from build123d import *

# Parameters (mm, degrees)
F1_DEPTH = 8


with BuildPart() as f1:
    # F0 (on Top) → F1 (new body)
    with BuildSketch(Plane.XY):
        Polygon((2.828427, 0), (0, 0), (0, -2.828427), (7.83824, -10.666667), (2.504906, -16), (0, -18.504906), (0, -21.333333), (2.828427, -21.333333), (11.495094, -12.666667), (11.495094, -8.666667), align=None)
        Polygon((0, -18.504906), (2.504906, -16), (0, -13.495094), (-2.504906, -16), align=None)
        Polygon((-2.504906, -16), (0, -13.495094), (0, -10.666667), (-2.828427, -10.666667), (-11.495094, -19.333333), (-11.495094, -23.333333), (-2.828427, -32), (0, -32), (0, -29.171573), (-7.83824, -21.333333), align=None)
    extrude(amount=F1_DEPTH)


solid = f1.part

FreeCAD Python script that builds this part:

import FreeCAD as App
import Part
import Sketcher
from FreeCAD import Vector

doc = App.newDocument("Part")
params = doc.addObject("Spreadsheet::Sheet", "Params")
for row, (alias, value) in enumerate([
    ("sketch1_height", "4 mm"),
    ("pad1_length", "8 mm"),
], start=1):
    params.set(f"A{row}", alias)
    params.set(f"B{row}", "=" + value)
    params.setAlias(f"B{row}", alias)

body = doc.addObject("PartDesign::Body", "Body")

# Sketch on XY plane
sketch1 = body.newObject("Sketcher::SketchObject", "Sketch")
sketch1.AttachmentSupport = (doc.getObject("XY_Plane"), [""])
sketch1.MapMode = "FlatFace"
sketch1.addGeometry([
    Part.LineSegment(Vector(2.8, 0, 0), Vector(0, 0, 0)),  # 0
    Part.LineSegment(Vector(0, 0, 0), Vector(0, -2.8, 0)),  # 1
    Part.LineSegment(Vector(0, -2.8, 0), Vector(7.8, -10.7, 0)),  # 2
    Part.LineSegment(Vector(7.8, -10.7, 0), Vector(2.5, -16, 0)),  # 3
    Part.LineSegment(Vector(2.5, -16, 0), Vector(0, -13.5, 0)),  # 4
    Part.LineSegment(Vector(0, -13.5, 0), Vector(0, -10.7, 0)),  # 5
    Part.LineSegment(Vector(0, -10.7, 0), Vector(-2.8, -10.7, 0)),  # 6
    Part.LineSegment(Vector(-2.8, -10.7, 0), Vector(-11.5, -19.3, 0)),  # 7
    Part.LineSegment(Vector(-11.5, -19.3, 0), Vector(-11.5, -23.3, 0)),  # 8
    Part.LineSegment(Vector(-11.5, -23.3, 0), Vector(-2.8, -32, 0)),  # 9
    Part.LineSegment(Vector(-2.8, -32, 0), Vector(0, -32, 0)),  # 10
    Part.LineSegment(Vector(0, -32, 0), Vector(0, -29.2, 0)),  # 11
    Part.LineSegment(Vector(0, -29.2, 0), Vector(-7.8, -21.3, 0)),  # 12
    Part.LineSegment(Vector(-7.8, -21.3, 0), Vector(-2.5, -16, 0)),  # 13
    Part.LineSegment(Vector(-2.5, -16, 0), Vector(0, -18.5, 0)),  # 14
    Part.LineSegment(Vector(0, -18.5, 0), Vector(0, -21.3, 0)),  # 15
    Part.LineSegment(Vector(0, -21.3, 0), Vector(2.8, -21.3, 0)),  # 16
    Part.LineSegment(Vector(2.8, -21.3, 0), Vector(11.5, -12.7, 0)),  # 17
    Part.LineSegment(Vector(11.5, -12.7, 0), Vector(11.5, -8.7, 0)),  # 18
    Part.LineSegment(Vector(11.5, -8.7, 0), Vector(2.8, 0, 0)),  # 19
], False)
sketch1.addConstraint([
    Sketcher.Constraint("Coincident", 0, 2, 1, 1),
    Sketcher.Constraint("Coincident", 1, 2, 2, 1),
    Sketcher.Constraint("Coincident", 2, 2, 3, 1),
    Sketcher.Constraint("Coincident", 3, 2, 4, 1),
    Sketcher.Constraint("Coincident", 4, 2, 5, 1),
    Sketcher.Constraint("Coincident", 5, 2, 6, 1),
    Sketcher.Constraint("Coincident", 6, 2, 7, 1),
    Sketcher.Constraint("Coincident", 7, 2, 8, 1),
    Sketcher.Constraint("Coincident", 8, 2, 9, 1),
    Sketcher.Constraint("Coincident", 9, 2, 10, 1),
    Sketcher.Constraint("Coincident", 10, 2, 11, 1),
    Sketcher.Constraint("Coincident", 11, 2, 12, 1),
    Sketcher.Constraint("Coincident", 12, 2, 13, 1),
    Sketcher.Constraint("Coincident", 13, 2, 14, 1),
    Sketcher.Constraint("Coincident", 14, 2, 15, 1),
    Sketcher.Constraint("Coincident", 15, 2, 16, 1),
    Sketcher.Constraint("Coincident", 16, 2, 17, 1),
    Sketcher.Constraint("Coincident", 17, 2, 18, 1),
    Sketcher.Constraint("Coincident", 18, 2, 19, 1),
    Sketcher.Constraint("Coincident", 19, 2, 0, 1),
    Sketcher.Constraint("Horizontal", 0),
    Sketcher.Constraint("Vertical", 1),
    Sketcher.Constraint("Vertical", 5),
    Sketcher.Constraint("Horizontal", 6),
    Sketcher.Constraint("Vertical", 8),
    Sketcher.Constraint("Horizontal", 10),
    Sketcher.Constraint("Vertical", 11),
    Sketcher.Constraint("Vertical", 15),
    Sketcher.Constraint("Horizontal", 16),
    Sketcher.Constraint("Vertical", 18),
    Sketcher.Constraint("Coincident", 0, 2, -1, 1),
    Sketcher.Constraint("Symmetric", 3, 2, 13, 2, -2),
    Sketcher.Constraint("PointOnObject", 4, 2, -2),
    Sketcher.Constraint("PointOnObject", 10, 2, -2),
    Sketcher.Constraint("PointOnObject", 14, 2, -2),
    Sketcher.Constraint("Perpendicular", 2, 3),
    Sketcher.Constraint("Perpendicular", 3, 4),
    Sketcher.Constraint("Perpendicular", 4, 7),
    Sketcher.Constraint("Perpendicular", 7, 9),
    Sketcher.Constraint("Parallel", 9, 12),
    Sketcher.Constraint("Perpendicular", 12, 13),
    Sketcher.Constraint("Perpendicular", 13, 14),
    Sketcher.Constraint("Perpendicular", 14, 17),
    Sketcher.Constraint("Perpendicular", 17, 19),
    Sketcher.Constraint("Horizontal", 2, 2, 5, 2),
    Sketcher.Constraint("Horizontal", 12, 2, 15, 2),
    Sketcher.Constraint("Vertical", 6, 2, 9, 2),
    Sketcher.Constraint("Vertical", 16, 2, 19, 2),
    Sketcher.Constraint("Equal", 0, 6),
    Sketcher.Constraint("Equal", 16, 1),
    Sketcher.Constraint("Equal", 1, 5),
    Sketcher.Constraint("Equal", 5, 11),
    Sketcher.Constraint("Equal", 11, 15),
    Sketcher.Constraint("Equal", 8, 18),
    Sketcher.Constraint("Equal", 7, 9),
    Sketcher.Constraint("DistanceY", 8, 2, 8, 1, 4.0),
    Sketcher.Constraint("DistanceY", 3, 2, -1, 1, 16.0),
    Sketcher.Constraint("DistanceX", 0, 2, 0, 1, 2.828427),
])
sketch1.setExpression("Constraints[55]", "Params.sketch1_height")
pad1 = body.newObject("PartDesign::Pad", "Pad")
pad1.Profile = sketch1
pad1.setExpression("Length", "Params.pad1_length")

doc.recompute()
